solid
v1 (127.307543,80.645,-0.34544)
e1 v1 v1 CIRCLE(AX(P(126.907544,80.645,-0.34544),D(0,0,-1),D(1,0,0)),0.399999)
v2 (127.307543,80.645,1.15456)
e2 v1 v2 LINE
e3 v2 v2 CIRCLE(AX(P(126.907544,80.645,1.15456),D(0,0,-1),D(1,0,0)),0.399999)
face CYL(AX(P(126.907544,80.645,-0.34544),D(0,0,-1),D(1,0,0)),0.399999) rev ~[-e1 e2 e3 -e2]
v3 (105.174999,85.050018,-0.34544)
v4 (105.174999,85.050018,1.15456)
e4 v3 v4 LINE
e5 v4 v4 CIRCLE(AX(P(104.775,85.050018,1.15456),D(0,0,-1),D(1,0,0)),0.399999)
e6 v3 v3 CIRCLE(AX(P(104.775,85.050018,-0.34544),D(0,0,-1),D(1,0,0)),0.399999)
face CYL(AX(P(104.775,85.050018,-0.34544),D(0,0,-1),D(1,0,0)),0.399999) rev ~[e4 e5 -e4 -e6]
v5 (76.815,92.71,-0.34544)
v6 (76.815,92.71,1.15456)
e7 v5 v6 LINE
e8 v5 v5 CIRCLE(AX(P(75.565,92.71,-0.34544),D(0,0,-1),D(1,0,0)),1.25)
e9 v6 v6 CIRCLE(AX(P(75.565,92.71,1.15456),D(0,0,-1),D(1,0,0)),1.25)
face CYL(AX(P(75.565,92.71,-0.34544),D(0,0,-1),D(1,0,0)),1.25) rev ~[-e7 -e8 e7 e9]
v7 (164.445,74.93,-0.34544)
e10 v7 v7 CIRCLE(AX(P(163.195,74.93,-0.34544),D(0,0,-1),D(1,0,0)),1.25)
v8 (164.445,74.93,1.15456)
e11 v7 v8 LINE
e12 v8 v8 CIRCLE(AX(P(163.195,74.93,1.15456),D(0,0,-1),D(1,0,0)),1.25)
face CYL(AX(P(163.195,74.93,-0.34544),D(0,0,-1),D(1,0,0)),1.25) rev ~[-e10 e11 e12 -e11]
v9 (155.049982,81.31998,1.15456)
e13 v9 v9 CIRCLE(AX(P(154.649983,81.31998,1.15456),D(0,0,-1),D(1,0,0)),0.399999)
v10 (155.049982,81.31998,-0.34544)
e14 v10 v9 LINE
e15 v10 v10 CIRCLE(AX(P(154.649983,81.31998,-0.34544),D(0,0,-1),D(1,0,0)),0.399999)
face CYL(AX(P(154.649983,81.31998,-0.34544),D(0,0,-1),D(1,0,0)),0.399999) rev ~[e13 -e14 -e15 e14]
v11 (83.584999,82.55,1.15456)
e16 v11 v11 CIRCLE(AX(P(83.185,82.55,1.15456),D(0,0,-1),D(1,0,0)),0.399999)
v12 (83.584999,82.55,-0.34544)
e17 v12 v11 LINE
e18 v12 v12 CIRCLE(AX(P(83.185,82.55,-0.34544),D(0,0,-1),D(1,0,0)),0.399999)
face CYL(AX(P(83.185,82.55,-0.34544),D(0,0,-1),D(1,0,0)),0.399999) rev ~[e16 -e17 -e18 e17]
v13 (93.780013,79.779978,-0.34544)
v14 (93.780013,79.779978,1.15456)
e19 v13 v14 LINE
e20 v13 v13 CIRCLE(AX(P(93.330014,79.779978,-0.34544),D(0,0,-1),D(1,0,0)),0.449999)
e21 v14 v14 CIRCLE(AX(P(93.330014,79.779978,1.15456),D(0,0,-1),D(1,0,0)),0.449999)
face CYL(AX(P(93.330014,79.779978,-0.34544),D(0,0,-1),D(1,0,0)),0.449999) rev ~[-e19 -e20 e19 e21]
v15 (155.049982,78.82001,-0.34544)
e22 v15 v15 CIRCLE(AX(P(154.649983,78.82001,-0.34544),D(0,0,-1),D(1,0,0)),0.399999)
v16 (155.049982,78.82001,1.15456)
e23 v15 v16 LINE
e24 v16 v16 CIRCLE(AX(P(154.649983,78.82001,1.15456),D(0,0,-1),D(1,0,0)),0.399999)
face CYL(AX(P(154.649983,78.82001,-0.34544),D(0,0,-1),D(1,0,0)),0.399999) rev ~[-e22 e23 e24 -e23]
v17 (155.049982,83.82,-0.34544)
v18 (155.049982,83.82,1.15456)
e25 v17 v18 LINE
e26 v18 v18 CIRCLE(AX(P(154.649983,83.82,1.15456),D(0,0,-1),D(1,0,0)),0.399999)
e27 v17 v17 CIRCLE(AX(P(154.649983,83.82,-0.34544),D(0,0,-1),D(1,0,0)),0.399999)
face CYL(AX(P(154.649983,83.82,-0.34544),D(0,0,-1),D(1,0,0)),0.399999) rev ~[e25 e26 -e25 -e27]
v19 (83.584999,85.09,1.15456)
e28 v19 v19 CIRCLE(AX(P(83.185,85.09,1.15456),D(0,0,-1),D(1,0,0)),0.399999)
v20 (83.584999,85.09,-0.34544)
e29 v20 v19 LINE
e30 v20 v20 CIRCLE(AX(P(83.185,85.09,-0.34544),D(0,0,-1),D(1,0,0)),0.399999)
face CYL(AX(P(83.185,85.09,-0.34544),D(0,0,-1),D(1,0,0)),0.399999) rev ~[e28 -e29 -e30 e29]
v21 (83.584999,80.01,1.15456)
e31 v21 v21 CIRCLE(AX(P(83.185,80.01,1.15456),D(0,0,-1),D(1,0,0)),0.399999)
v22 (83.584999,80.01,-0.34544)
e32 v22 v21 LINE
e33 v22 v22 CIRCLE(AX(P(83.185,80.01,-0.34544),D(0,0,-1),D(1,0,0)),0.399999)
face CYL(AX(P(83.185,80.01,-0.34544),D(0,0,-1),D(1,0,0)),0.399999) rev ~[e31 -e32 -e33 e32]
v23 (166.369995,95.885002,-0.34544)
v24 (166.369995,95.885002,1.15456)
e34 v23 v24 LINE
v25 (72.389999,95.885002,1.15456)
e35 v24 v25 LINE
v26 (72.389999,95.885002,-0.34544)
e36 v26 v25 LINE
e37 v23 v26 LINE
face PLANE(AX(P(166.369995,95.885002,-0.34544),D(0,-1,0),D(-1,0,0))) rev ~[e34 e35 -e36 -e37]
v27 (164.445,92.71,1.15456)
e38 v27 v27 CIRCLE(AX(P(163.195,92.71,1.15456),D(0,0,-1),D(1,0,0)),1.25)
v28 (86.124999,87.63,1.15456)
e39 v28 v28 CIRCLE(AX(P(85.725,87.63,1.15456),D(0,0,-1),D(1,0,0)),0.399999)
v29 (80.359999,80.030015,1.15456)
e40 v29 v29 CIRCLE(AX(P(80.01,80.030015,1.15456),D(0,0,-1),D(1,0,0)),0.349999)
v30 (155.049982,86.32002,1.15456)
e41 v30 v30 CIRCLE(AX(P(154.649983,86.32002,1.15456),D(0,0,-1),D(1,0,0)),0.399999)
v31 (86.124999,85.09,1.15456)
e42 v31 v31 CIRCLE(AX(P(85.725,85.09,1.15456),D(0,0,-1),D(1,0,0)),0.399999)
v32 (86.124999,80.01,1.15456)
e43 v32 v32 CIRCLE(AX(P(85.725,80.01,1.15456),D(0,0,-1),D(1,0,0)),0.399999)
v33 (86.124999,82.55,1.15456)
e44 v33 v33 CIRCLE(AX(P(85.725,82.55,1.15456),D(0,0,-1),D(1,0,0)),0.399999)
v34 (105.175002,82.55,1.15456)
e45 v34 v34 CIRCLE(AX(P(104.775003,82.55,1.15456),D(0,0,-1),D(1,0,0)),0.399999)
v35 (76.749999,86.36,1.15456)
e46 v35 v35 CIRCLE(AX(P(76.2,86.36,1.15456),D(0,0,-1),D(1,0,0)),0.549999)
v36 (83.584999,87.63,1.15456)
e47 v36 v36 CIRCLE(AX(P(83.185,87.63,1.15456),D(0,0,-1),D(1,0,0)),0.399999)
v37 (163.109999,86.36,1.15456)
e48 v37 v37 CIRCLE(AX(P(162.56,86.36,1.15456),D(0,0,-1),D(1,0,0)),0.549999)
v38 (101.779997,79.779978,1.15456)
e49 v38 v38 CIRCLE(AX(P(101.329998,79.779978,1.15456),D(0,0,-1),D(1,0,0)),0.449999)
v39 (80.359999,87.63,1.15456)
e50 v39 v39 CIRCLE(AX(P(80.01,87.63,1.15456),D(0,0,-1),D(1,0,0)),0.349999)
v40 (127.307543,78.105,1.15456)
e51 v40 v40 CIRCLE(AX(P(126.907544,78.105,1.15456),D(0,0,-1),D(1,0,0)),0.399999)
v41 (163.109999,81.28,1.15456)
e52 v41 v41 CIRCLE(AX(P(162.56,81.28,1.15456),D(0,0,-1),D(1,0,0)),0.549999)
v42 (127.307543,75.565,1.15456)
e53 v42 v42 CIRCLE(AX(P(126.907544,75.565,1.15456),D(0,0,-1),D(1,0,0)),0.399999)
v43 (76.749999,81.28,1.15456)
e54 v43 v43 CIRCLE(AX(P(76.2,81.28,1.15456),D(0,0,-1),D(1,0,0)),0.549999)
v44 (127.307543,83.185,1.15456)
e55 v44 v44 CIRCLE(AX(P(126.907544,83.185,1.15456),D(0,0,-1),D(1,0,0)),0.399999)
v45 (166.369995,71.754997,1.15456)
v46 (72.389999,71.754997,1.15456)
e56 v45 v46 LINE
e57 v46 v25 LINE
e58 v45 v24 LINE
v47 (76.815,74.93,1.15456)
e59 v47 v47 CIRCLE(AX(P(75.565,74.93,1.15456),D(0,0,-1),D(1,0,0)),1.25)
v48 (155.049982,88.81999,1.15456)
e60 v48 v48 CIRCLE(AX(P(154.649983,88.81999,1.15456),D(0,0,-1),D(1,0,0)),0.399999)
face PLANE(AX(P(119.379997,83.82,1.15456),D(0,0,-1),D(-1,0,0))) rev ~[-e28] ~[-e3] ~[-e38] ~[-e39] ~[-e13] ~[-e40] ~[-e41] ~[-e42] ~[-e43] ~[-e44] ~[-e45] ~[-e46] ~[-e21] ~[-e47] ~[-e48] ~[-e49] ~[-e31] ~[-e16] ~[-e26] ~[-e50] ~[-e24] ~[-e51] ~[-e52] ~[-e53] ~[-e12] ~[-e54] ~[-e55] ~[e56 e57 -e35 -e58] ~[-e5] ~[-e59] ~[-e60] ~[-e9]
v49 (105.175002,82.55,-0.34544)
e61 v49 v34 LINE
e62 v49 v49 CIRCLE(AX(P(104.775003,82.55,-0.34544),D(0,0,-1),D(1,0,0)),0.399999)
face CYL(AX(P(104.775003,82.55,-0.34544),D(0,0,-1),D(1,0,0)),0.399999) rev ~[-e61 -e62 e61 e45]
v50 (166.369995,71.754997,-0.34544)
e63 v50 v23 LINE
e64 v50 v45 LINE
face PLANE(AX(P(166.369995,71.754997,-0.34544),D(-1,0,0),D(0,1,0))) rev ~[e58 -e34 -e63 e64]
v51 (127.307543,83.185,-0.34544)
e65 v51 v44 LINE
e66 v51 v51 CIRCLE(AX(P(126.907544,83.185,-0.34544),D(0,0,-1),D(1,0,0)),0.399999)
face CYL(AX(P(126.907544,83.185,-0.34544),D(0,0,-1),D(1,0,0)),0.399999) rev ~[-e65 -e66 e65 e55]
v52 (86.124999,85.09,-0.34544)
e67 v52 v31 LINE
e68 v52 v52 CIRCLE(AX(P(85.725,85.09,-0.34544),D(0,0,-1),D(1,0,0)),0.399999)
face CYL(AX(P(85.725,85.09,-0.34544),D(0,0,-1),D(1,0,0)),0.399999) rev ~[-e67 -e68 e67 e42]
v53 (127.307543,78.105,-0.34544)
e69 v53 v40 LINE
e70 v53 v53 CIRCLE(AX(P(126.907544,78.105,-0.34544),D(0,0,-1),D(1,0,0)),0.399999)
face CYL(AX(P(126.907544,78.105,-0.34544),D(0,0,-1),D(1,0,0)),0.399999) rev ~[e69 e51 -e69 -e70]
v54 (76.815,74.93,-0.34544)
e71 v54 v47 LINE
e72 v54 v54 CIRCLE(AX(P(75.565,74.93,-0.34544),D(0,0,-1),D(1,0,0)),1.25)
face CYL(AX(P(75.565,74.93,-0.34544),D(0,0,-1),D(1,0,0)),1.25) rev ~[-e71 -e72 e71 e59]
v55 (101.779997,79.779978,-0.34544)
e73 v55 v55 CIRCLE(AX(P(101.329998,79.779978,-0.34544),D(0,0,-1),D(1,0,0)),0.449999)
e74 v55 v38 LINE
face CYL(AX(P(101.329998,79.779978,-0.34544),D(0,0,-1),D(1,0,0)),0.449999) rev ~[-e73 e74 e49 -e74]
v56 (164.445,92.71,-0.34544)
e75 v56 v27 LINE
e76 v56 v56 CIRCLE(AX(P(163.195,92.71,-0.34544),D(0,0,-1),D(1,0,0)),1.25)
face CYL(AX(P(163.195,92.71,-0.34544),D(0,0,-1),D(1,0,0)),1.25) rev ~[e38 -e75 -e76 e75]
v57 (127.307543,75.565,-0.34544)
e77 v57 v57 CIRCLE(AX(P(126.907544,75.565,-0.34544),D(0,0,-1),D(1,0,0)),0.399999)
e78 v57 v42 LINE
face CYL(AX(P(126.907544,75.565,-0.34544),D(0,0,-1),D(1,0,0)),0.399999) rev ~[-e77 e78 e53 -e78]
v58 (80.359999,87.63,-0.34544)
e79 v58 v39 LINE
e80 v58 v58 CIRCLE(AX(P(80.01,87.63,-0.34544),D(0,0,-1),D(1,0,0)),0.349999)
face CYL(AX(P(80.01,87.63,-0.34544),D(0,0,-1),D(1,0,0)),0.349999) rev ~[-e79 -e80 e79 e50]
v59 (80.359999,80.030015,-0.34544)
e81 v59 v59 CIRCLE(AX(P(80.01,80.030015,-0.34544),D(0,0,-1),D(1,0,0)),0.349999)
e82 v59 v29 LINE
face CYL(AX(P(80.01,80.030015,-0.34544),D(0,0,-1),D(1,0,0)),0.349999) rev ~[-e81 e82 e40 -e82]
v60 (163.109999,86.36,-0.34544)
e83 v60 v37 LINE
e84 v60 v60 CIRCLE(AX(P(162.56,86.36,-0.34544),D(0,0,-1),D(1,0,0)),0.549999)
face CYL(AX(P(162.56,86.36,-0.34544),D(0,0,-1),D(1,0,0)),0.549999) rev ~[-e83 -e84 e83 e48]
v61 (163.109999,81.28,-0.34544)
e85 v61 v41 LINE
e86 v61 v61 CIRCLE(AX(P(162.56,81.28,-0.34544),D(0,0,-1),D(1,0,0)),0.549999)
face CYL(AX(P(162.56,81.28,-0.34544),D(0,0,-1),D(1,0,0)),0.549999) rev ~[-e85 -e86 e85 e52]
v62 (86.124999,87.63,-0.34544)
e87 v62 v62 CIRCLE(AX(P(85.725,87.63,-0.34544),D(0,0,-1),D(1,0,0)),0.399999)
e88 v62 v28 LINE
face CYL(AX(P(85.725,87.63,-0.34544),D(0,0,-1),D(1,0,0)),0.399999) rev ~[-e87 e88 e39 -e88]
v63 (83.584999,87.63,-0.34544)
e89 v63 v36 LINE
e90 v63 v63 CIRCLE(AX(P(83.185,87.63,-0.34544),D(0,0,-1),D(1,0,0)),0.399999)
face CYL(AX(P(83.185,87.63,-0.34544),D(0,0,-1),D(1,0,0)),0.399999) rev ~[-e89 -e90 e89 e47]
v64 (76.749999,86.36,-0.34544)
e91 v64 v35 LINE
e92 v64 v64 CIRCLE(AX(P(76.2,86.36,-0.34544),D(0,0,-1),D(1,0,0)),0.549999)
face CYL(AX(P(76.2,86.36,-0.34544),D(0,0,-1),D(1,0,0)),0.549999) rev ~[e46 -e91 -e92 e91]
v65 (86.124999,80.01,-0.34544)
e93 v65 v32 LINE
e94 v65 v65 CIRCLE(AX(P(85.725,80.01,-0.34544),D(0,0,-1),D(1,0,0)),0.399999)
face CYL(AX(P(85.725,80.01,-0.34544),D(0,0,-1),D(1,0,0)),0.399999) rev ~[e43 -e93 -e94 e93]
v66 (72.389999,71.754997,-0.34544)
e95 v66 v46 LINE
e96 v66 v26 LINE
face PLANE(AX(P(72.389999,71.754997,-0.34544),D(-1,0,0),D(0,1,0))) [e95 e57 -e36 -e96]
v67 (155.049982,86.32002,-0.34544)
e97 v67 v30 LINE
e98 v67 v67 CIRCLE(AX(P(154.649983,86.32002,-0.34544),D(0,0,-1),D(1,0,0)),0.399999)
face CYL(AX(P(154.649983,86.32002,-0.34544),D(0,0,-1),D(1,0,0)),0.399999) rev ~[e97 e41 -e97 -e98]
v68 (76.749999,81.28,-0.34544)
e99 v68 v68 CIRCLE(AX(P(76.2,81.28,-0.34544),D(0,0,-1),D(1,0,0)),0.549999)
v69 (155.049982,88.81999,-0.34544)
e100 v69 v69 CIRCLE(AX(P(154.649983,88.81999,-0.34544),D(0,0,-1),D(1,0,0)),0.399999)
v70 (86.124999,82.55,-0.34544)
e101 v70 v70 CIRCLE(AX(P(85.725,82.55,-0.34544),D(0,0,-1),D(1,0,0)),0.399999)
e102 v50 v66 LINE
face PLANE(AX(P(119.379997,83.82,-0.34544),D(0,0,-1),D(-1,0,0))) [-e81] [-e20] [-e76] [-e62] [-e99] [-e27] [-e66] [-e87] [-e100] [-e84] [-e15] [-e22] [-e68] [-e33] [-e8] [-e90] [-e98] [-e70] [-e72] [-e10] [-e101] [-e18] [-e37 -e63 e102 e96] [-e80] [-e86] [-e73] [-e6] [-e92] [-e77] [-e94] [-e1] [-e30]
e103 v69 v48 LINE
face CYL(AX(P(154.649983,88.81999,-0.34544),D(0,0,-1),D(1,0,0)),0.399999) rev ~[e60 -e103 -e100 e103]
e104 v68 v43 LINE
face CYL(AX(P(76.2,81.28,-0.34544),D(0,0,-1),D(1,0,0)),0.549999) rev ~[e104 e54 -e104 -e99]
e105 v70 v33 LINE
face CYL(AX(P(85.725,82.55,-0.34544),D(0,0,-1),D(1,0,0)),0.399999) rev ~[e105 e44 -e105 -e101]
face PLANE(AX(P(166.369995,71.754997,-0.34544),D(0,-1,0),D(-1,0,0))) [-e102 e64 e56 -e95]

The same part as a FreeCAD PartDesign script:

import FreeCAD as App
import Part
import Sketcher
from FreeCAD import Vector

doc = App.newDocument("Part")
body = doc.addObject("PartDesign::Body", "Body")

sketch1 = body.newObject("Sketcher::SketchObject", "Sketch")
sketch1.AttachmentSupport = (doc.getObject("XY_Plane"), [""])
sketch1.MapMode = "FlatFace"
sketch1.AttachmentOffset = App.Placement(Vector(0, 0, -0.34544), App.Rotation())
sketch1.addGeometry([
    Part.LineSegment(Vector(166.37, 95.89, 0), Vector(166.37, 71.75, 0)),
    Part.LineSegment(Vector(166.37, 71.75, 0), Vector(72.39, 71.75, 0)),
    Part.LineSegment(Vector(72.39, 71.75, 0), Vector(72.39, 95.89, 0)),
    Part.LineSegment(Vector(72.39, 95.89, 0), Vector(166.37, 95.89, 0)),
    Part.Circle(Vector(163.19, 74.93, 0), Vector(0, 0, 1), 1.25),
    Part.Circle(Vector(126.91, 75.56, 0), Vector(0, 0, 1), 0.4),
    Part.Circle(Vector(126.91, 78.11, 0), Vector(0, 0, 1), 0.4),
    Part.Circle(Vector(154.65, 78.82, 0), Vector(0, 0, 1), 0.4),
    Part.Circle(Vector(162.56, 81.28, 0), Vector(0, 0, 1), 0.55),
    Part.Circle(Vector(154.65, 81.32, 0), Vector(0, 0, 1), 0.4),
    Part.Circle(Vector(154.65, 83.82, 0), Vector(0, 0, 1), 0.4),
    Part.Circle(Vector(126.91, 80.64, 0), Vector(0, 0, 1), 0.4),
    Part.Circle(Vector(126.91, 83.19, 0), Vector(0, 0, 1), 0.4),
    Part.Circle(Vector(75.56, 74.93, 0), Vector(0, 0, 1), 1.25),
    Part.Circle(Vector(101.33, 79.78, 0), Vector(0, 0, 1), 0.45),
    Part.Circle(Vector(104.78, 82.55, 0), Vector(0, 0, 1), 0.4),
    Part.Circle(Vector(93.33, 79.78, 0), Vector(0, 0, 1), 0.45),
    Part.Circle(Vector(85.72, 80.01, 0), Vector(0, 0, 1), 0.4),
    Part.Circle(Vector(83.19, 80.01, 0), Vector(0, 0, 1), 0.4),
    Part.Circle(Vector(80.01, 80.03, 0), Vector(0, 0, 1), 0.35),
    Part.Circle(Vector(76.2, 81.28, 0), Vector(0, 0, 1), 0.55),
    Part.Circle(Vector(85.72, 82.55, 0), Vector(0, 0, 1), 0.4),
    Part.Circle(Vector(83.19, 82.55, 0), Vector(0, 0, 1), 0.4),
    Part.Circle(Vector(154.65, 86.32, 0), Vector(0, 0, 1), 0.4),
    Part.Circle(Vector(162.56, 86.36, 0), Vector(0, 0, 1), 0.55),
    Part.Circle(Vector(154.65, 88.82, 0), Vector(0, 0, 1), 0.4),
    Part.Circle(Vector(163.19, 92.71, 0), Vector(0, 0, 1), 1.25),
    Part.Circle(Vector(104.78, 85.05, 0), Vector(0, 0, 1), 0.4),
    Part.Circle(Vector(85.72, 85.09, 0), Vector(0, 0, 1), 0.4),
    Part.Circle(Vector(83.19, 85.09, 0), Vector(0, 0, 1), 0.4),
    Part.Circle(Vector(85.72, 87.63, 0), Vector(0, 0, 1), 0.4),
    Part.Circle(Vector(76.2, 86.36, 0), Vector(0, 0, 1), 0.55),
    Part.Circle(Vector(83.19, 87.63, 0), Vector(0, 0, 1), 0.4),
    Part.Circle(Vector(80.01, 87.63, 0), Vector(0, 0, 1), 0.35),
    Part.Circle(Vector(75.56, 92.71, 0), Vector(0, 0, 1), 1.25),
], False)
sketch1.addConstraint([
    Sketcher.Constraint("Coincident", 0, 2, 1, 1),
    Sketcher.Constraint("Coincident", 1, 2, 2, 1),
    Sketcher.Constraint("Coincident", 2, 2, 3, 1),
    Sketcher.Constraint("Coincident", 3, 2, 0, 1),
    Sketcher.Constraint("Vertical", 0),
    Sketcher.Constraint("Horizontal", 1),
    Sketcher.Constraint("Vertical", 2),
    Sketcher.Constraint("Horizontal", 3),
    Sketcher.Constraint("Equal", 5, 6),
    Sketcher.Constraint("Equal", 6, 7),
    Sketcher.Constraint("Equal", 7, 9),
    Sketcher.Constraint("Equal", 9, 10),
    Sketcher.Constraint("Equal", 10, 11),
    Sketcher.Constraint("Equal", 11, 12),
    Sketcher.Constraint("Equal", 4, 13),
    Sketcher.Constraint("Equal", 12, 15),
    Sketcher.Constraint("Equal", 14, 16),
    Sketcher.Constraint("Equal", 15, 17),
    Sketcher.Constraint("Equal", 17, 18),
    Sketcher.Constraint("Equal", 8, 20),
    Sketcher.Constraint("Equal", 18, 21),
    Sketcher.Constraint("Equal", 21, 22),
    Sketcher.Constraint("Equal", 22, 23),
    Sketcher.Constraint("Equal", 20, 24),
    Sketcher.Constraint("Equal", 23, 25),
    Sketcher.Constraint("Equal", 13, 26),
    Sketcher.Constraint("Equal", 25, 27),
    Sketcher.Constraint("Equal", 27, 28),
    Sketcher.Constraint("Equal", 28, 29),
    Sketcher.Constraint("Equal", 29, 30),
    Sketcher.Constraint("Equal", 24, 31),
    Sketcher.Constraint("Equal", 30, 32),
    Sketcher.Constraint("Equal", 19, 33),
    Sketcher.Constraint("Equal", 26, 34),
    Sketcher.Constraint("Horizontal", 4, 3, 13, 3),
    Sketcher.Constraint("Horizontal", 14, 3, 16, 3),
    Sketcher.Constraint("Horizontal", 17, 3, 18, 3),
    Sketcher.Constraint("Horizontal", 8, 3, 20, 3),
    Sketcher.Constraint("Horizontal", 15, 3, 21, 3),
    Sketcher.Constraint("Horizontal", 21, 3, 22, 3),
    Sketcher.Constraint("Horizontal", 28, 3, 29, 3),
    Sketcher.Constraint("Horizontal", 24, 3, 31, 3),
    Sketcher.Constraint("Horizontal", 30, 3, 32, 3),
    Sketcher.Constraint("Horizontal", 32, 3, 33, 3),
    Sketcher.Constraint("Horizontal", 26, 3, 34, 3),
    Sketcher.Constraint("Vertical", 5, 3, 6, 3),
    Sketcher.Constraint("Vertical", 7, 3, 9, 3),
    Sketcher.Constraint("Vertical", 9, 3, 10, 3),
    Sketcher.Constraint("Vertical", 6, 3, 11, 3),
    Sketcher.Constraint("Vertical", 11, 3, 12, 3),
    Sketcher.Constraint("Vertical", 17, 3, 21, 3),
    Sketcher.Constraint("Vertical", 18, 3, 22, 3),
    Sketcher.Constraint("Vertical", 10, 3, 23, 3),
    Sketcher.Constraint("Vertical", 8, 3, 24, 3),
    Sketcher.Constraint("Vertical", 23, 3, 25, 3),
    Sketcher.Constraint("Vertical", 4, 3, 26, 3),
    Sketcher.Constraint("Vertical", 21, 3, 28, 3),
    Sketcher.Constraint("Vertical", 22, 3, 29, 3),
    Sketcher.Constraint("Vertical", 28, 3, 30, 3),
    Sketcher.Constraint("Vertical", 20, 3, 31, 3),
    Sketcher.Constraint("Vertical", 29, 3, 32, 3),
    Sketcher.Constraint("Vertical", 19, 3, 33, 3),
    Sketcher.Constraint("Vertical", 13, 3, 34, 3),
    Sketcher.Constraint("Diameter", 4, 2.5),
    Sketcher.Constraint("Diameter", 5, 0.799998),
    Sketcher.Constraint("Diameter", 14, 0.899998),
    Sketcher.Constraint("Diameter", 19, 0.699999),
    Sketcher.Constraint("DistanceX", -1, 1, 20, 3, 76.2),
    Sketcher.Constraint("DistanceY", -1, 1, 4, 3, 74.93),
    Sketcher.Constraint("DistanceX", -1, 1, 8, 3, 162.56),
    Sketcher.Constraint("DistanceY", -1, 1, 8, 3, 81.28),
    Sketcher.Constraint("DistanceY", -1, 1, 10, 3, 83.82),
    Sketcher.Constraint("DistanceX", -1, 1, 14, 3, 101.329998),
    Sketcher.Constraint("DistanceY", -1, 1, 15, 3, 82.55),
    Sketcher.Constraint("DistanceY", -1, 1, 17, 3, 80.01),
    Sketcher.Constraint("DistanceX", -1, 1, 19, 3, 80.01),
    Sketcher.Constraint("DistanceY", -1, 1, 24, 3, 86.36),
    Sketcher.Constraint("DistanceY", -1, 1, 26, 3, 92.71),
    Sketcher.Constraint("DistanceY", -1, 1, 28, 3, 85.09),
    Sketcher.Constraint("DistanceY", -1, 1, 30, 3, 87.63),
    Sketcher.Constraint("DistanceX", -1, 1, 1, 2, 72.389999),
    Sketcher.Constraint("DistanceY", 5, 3, 6, 3, 2.54),
    Sketcher.Constraint("DistanceY", 6, 3, 11, 3, 2.54),
    Sketcher.Constraint("DistanceY", 11, 3, 12, 3, 2.54),
    Sketcher.Constraint("DistanceX", 13, 3, 17, 3, 10.16),
    Sketcher.Constraint("DistanceX", 18, 3, 17, 3, 2.54),
    Sketcher.Constraint("DistanceX", 21, 3, 27, 3, 19.05),
    Sketcher.Constraint("Diameter", 8, 1.099998),
    Sketcher.Constraint("DistanceX", -1, 1, 4, 3, 163.195),
    Sketcher.Constraint("DistanceY", -1, 1, 5, 3, 75.565),
    Sketcher.Constraint("DistanceX", -1, 1, 13, 3, 75.565),
    Sketcher.Constraint("DistanceX", 1, 2, 1, 1, 93.979996),
    Sketcher.Constraint("DistanceY", 0, 2, 0, 1, 24.130005),
    Sketcher.Constraint("DistanceY", -1, 1, 7, 3, 78.82001),
    Sketcher.Constraint("DistanceY", -1, 1, 9, 3, 81.31998),
    Sketcher.Constraint("DistanceY", -1, 1, 23, 3, 86.32002),
    Sketcher.Constraint("DistanceY", -1, 1, 25, 3, 88.81999),
    Sketcher.Constraint("DistanceX", 6, 3, 7, 3, 27.742439),
    Sketcher.Constraint("DistanceX", 15, 3, 12, 3, 22.132541),
    Sketcher.Constraint("DistanceX", 16, 3, 15, 3, 11.444989),
    Sketcher.Constraint("DistanceY", 14, 3, 27, 3, 5.27004),
    Sketcher.Constraint("DistanceY", 23, 3, 3, 2, 9.564982),
    Sketcher.Constraint("DistanceX", -1, 1, 5, 3, 126.907544),
    Sketcher.Constraint("DistanceY", -1, 1, 14, 3, 79.779978),
    Sketcher.Constraint("DistanceY", -1, 1, 19, 3, 80.030015),
])
pad1 = body.newObject("PartDesign::Pad", "Pad")
pad1.Profile = sketch1
pad1.Length = 1.5

doc.recompute()
